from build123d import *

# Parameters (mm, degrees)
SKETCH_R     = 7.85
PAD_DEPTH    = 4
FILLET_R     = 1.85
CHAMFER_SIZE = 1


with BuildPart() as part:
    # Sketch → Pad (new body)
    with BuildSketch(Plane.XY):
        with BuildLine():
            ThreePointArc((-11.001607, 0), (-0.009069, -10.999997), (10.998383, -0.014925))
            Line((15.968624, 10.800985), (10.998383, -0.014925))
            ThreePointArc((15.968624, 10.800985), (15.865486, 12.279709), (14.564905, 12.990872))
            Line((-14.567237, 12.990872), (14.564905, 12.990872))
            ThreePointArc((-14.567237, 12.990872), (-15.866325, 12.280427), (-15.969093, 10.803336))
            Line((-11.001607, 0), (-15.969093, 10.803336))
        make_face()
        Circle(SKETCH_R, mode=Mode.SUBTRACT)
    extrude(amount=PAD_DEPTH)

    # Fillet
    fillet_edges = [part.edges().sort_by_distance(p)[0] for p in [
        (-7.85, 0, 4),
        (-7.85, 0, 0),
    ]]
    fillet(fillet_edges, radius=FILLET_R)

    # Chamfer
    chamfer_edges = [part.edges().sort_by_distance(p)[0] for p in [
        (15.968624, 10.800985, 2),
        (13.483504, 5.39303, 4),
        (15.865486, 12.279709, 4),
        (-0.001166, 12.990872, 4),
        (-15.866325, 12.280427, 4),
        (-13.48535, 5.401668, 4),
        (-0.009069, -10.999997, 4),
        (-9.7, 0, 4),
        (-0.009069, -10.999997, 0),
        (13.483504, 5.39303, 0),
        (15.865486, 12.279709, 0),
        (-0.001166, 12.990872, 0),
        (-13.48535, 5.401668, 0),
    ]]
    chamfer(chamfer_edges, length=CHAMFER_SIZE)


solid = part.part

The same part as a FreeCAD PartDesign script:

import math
import FreeCAD as App
import Part
import Sketcher


def edges_at(feature, points):
    """Names of the edges that pass closest to the given points."""
    edges = feature.Shape.Edges
    near = lambda p: min(range(len(edges)), key=lambda i: edges[i].distToShape(Part.Vertex(*p))[0])
    return sorted({f"Edge{near(p) + 1}" for p in points})

doc = App.newDocument("Part")
body = doc.addObject("PartDesign::Body", "Body")

sketch1 = doc.addObject("Sketcher::SketchObject", "Sketch")
body.addObject(sketch1)
sketch1.AttachmentSupport = (doc.XY_Plane, [""])
sketch1.MapMode = "FlatFace"
sketch1.addGeometry([
    Part.ArcOfCircle(Part.Circle(App.Vector(-0.001607, 0.000001, 0), App.Vector(0, 0, 1), 11), math.radians(-179.999997), math.radians(-0.077743)),
    Part.LineSegment(App.Vector(10.998383, -0.014925, 0), App.Vector(15.968624, 10.800985, 0)),
    Part.ArcOfCircle(Part.Circle(App.Vector(14.564907, 11.446037, 0), App.Vector(0, 0, 1), 1.544835), math.radians(-24.68028), math.radians(90.000077)),
    Part.LineSegment(App.Vector(14.564905, 12.990872, 0), App.Vector(-14.567237, 12.990872, 0)),
    Part.ArcOfCircle(Part.Circle(App.Vector(-14.567237, 11.447923, 0), App.Vector(0, 0, 1), 1.542949), math.radians(89.999987), math.radians(204.693436)),
    Part.LineSegment(App.Vector(-15.969093, 10.803336, 0), App.Vector(-11.001607, 0, 0)),
    Part.Circle(App.Vector(0, 0, 0), App.Vector(0, 0, 1), 7.85),
], False)
sketch1.addConstraint([
    Sketcher.Constraint("Coincident", 0, 2, 1, 1),
    Sketcher.Constraint("Coincident", 1, 2, 2, 1),
    Sketcher.Constraint("Coincident", 2, 2, 3, 1),
    Sketcher.Constraint("Coincident", 3, 2, 4, 1),
    Sketcher.Constraint("Coincident", 4, 2, 5, 1),
    Sketcher.Constraint("Coincident", 5, 2, 0, 1),
    Sketcher.Constraint("Horizontal", 3),
    Sketcher.Constraint("Coincident", 6, 3, -1, 1),
    Sketcher.Constraint("PointOnObject", 0, 3, -1),
    Sketcher.Constraint("PointOnObject", 5, 2, -1),
    Sketcher.Constraint("Radius", 0, 11.0),
    Sketcher.Constraint("Diameter", 6, 15.7),
    Sketcher.Constraint("Radius", 4, 1.542949),
    Sketcher.Constraint("Radius", 2, 1.544835),
    Sketcher.Constraint("Distance", 5, 11.890668),
    Sketcher.Constraint("DistanceX", 3, 2, 3, 1, 29.132142),
    Sketcher.Constraint("DistanceY", -1, 1, 2, 2, 12.990872),
    Sketcher.Constraint("DistanceX", 4, 3, 0, 3, 14.56563),
    Sketcher.Constraint("DistanceX", 0, 2, 1, 2, 4.970241),
    Sketcher.Constraint("DistanceY", 0, 2, 1, 2, 10.81591),
    Sketcher.Constraint("DistanceX", 2, 2, 1, 2, 1.403719),
    Sketcher.Constraint("DistanceY", 0, 2, 4, 2, 10.818261),
    Sketcher.Constraint("DistanceX", 0, 3, -1, 1, 0.001607),
])
pad1 = doc.addObject("PartDesign::Pad", "Pad")
body.addObject(pad1)
pad1.Profile = sketch1
pad1.Length = 4
doc.recompute()

fillet = doc.addObject("PartDesign::Fillet", "Fillet")
body.addObject(fillet)
fillet.Base = (pad1, edges_at(pad1, [(-7.85, 0, 4), (-7.85, 0, 0)]))
fillet.Radius = 1.85
doc.recompute()

chamfer = doc.addObject("PartDesign::Chamfer", "Chamfer")
body.addObject(chamfer)
chamfer.Base = (fillet, edges_at(fillet, [
    (15.969, 10.801, 2),
    (13.484, 5.393, 4),
    (15.865, 12.28, 4),
    (-0.001, 12.991, 4),
    (-15.866, 12.28, 4),
    (-13.485, 5.402, 4),
    (-0.009, -11, 4),
    (-9.7, 0, 4),
    (-0.009, -11, 0),
    (13.484, 5.393, 0),
    (15.865, 12.28, 0),
    (-0.001, 12.991, 0),
    (-13.485, 5.402, 0),
]))
chamfer.Size = 1

doc.recompute()
